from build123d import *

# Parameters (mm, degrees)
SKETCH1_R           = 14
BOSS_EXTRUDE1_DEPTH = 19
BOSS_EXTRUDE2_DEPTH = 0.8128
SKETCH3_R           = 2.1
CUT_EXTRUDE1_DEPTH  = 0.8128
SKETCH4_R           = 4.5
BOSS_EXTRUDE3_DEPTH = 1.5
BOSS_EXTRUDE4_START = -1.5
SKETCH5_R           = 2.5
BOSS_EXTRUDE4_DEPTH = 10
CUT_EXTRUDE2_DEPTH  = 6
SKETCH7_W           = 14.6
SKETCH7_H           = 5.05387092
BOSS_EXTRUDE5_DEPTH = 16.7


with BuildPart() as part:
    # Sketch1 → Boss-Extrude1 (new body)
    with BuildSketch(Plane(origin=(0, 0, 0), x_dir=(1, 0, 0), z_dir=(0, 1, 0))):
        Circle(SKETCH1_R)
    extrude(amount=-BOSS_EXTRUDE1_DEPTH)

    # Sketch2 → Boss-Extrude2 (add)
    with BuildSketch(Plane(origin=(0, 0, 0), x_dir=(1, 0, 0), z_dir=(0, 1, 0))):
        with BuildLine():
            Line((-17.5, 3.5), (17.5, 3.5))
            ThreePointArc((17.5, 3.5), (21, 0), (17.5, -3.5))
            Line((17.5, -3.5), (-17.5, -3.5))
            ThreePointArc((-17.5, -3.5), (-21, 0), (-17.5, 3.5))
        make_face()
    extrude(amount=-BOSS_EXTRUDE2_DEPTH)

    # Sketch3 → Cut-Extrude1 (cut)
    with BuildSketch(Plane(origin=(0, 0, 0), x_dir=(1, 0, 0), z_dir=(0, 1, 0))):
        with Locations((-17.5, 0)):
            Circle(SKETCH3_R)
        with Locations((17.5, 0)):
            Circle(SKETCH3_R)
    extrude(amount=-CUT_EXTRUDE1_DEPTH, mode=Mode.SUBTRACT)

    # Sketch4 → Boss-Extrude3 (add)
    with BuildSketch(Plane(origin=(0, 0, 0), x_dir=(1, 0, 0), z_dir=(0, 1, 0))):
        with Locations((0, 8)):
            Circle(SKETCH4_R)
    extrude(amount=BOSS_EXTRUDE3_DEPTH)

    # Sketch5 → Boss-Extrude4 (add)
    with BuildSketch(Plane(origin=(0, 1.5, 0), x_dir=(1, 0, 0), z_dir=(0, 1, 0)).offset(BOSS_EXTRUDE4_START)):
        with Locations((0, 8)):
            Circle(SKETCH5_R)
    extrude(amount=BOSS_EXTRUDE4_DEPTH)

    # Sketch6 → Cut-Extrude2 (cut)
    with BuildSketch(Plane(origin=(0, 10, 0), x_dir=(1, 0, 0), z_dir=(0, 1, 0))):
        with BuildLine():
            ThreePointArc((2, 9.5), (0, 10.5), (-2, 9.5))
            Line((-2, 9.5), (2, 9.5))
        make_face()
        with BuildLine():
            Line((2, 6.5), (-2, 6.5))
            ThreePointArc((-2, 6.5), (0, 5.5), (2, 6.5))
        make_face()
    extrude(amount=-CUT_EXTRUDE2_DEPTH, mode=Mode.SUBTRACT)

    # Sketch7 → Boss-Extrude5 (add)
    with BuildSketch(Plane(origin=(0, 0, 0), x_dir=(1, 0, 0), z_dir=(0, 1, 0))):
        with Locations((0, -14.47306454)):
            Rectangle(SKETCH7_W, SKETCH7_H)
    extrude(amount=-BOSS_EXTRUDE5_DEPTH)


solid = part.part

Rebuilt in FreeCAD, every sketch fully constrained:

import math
import FreeCAD as App
import Part
import Sketcher

doc = App.newDocument("Part")
body = doc.addObject("PartDesign::Body", "Body")

# Sketch on XZ plane
sketch1 = body.newObject("Sketcher::SketchObject", "Sketch")
sketch1.AttachmentSupport = (doc.getObject("XZ_Plane"), [""])
sketch1.MapMode = "FlatFace"
sketch1.addGeometry(Part.Circle(App.Vector(0, 0, 0), App.Vector(0, 0, 1), 14), False)
sketch1.addConstraint(Sketcher.Constraint("Coincident", 0, 3, -1, 1))
sketch1.addConstraint(Sketcher.Constraint("Diameter", 0, 28.0))
pad1 = body.newObject("PartDesign::Pad", "Pad")
pad1.Profile = sketch1
pad1.Length = 19

# Sketch on XZ plane
sketch2 = body.newObject("Sketcher::SketchObject", "Sketch001")
sketch2.AttachmentSupport = (doc.getObject("XZ_Plane"), [""])
sketch2.MapMode = "FlatFace"
sketch2.addGeometry(Part.LineSegment(App.Vector(17.5, -3.5, 0), App.Vector(-17.5, -3.5, 0)), False)
sketch2.addGeometry(Part.ArcOfCircle(Part.Circle(App.Vector(-17.5, 0, 0), App.Vector(0, 0, 1), 3.5), math.radians(90), math.radians(270)), False)
sketch2.addGeometry(Part.LineSegment(App.Vector(-17.5, 3.5, 0), App.Vector(17.5, 3.5, 0)), False)
sketch2.addGeometry(Part.ArcOfCircle(Part.Circle(App.Vector(17.5, 0, 0), App.Vector(0, 0, 1), 3.5), math.radians(-90), math.radians(90)), False)
sketch2.addConstraint(Sketcher.Constraint("Tangent", 0, 2, 1, 2))
sketch2.addConstraint(Sketcher.Constraint("Tangent", 1, 1, 2, 1))
sketch2.addConstraint(Sketcher.Constraint("Tangent", 2, 2, 3, 2))
sketch2.addConstraint(Sketcher.Constraint("Tangent", 3, 1, 0, 1))
sketch2.addConstraint(Sketcher.Constraint("Horizontal", 0))
sketch2.addConstraint(Sketcher.Constraint("Horizontal", 2))
sketch2.addConstraint(Sketcher.Constraint("Symmetric", 1, 3, 3, 3, -1, 1))
sketch2.addConstraint(Sketcher.Constraint("Radius", 1, 3.5))
sketch2.addConstraint(Sketcher.Constraint("DistanceX", 0, 2, 0, 1, 35.0))
pad2 = body.newObject("PartDesign::Pad", "Pad001")
pad2.Profile = sketch2
pad2.Length = 0.8128

# Sketch on XZ plane
sketch3 = body.newObject("Sketcher::SketchObject", "Sketch002")
sketch3.AttachmentSupport = (doc.getObject("XZ_Plane"), [""])
sketch3.MapMode = "FlatFace"
sketch3.addGeometry(Part.Circle(App.Vector(-17.5, 0, 0), App.Vector(0, 0, 1), 2.1), False)
sketch3.addGeometry(Part.Circle(App.Vector(17.5, 0, 0), App.Vector(0, 0, 1), 2.1), False)
sketch3.addConstraint(Sketcher.Constraint("Equal", 0, 1))
sketch3.addConstraint(Sketcher.Constraint("Symmetric", 0, 3, 1, 3, -1, 1))
sketch3.addConstraint(Sketcher.Constraint("PointOnObject", 0, 3, -1))
sketch3.addConstraint(Sketcher.Constraint("Diameter", 0, 4.2))
sketch3.addConstraint(Sketcher.Constraint("DistanceX", 0, 3, 1, 3, 35.0))
pocket1 = body.newObject("PartDesign::Pocket", "Pocket")
pocket1.Profile = sketch3
pocket1.Length = 0.8128
pocket1.Reversed = True

# Sketch on XZ plane
sketch4 = body.newObject("Sketcher::SketchObject", "Sketch003")
sketch4.AttachmentSupport = (doc.getObject("XZ_Plane"), [""])
sketch4.MapMode = "FlatFace"
sketch4.addGeometry(Part.Circle(App.Vector(0, -8, 0), App.Vector(0, 0, 1), 4.5), False)
sketch4.addConstraint(Sketcher.Constraint("PointOnObject", 0, 3, -2))
sketch4.addConstraint(Sketcher.Constraint("Diameter", 0, 9.0))
sketch4.addConstraint(Sketcher.Constraint("DistanceY", 0, 3, -1, 1, 8.0))
pad3 = body.newObject("PartDesign::Pad", "Pad002")
pad3.Profile = sketch4
pad3.Length = 1.5
pad3.Reversed = True

# Sketch on XZ plane
sketch5 = body.newObject("Sketcher::SketchObject", "Sketch004")
sketch5.AttachmentSupport = (doc.getObject("XZ_Plane"), [""])
sketch5.MapMode = "FlatFace"
sketch5.addGeometry(Part.Circle(App.Vector(0, -8, 0), App.Vector(0, 0, 1), 2.5), False)
sketch5.addConstraint(Sketcher.Constraint("PointOnObject", 0, 3, -2))
sketch5.addConstraint(Sketcher.Constraint("Diameter", 0, 5.0))
sketch5.addConstraint(Sketcher.Constraint("DistanceY", 0, 3, -1, 1, 8.0))
pad4 = body.newObject("PartDesign::Pad", "Pad003")
pad4.Profile = sketch5
pad4.Length = 10
pad4.Reversed = True

# Sketch on XZ plane
sketch6 = body.newObject("Sketcher::SketchObject", "Sketch005")
sketch6.AttachmentSupport = (doc.getObject("XZ_Plane"), [""])
sketch6.MapMode = "FlatFace"
sketch6.AttachmentOffset = App.Placement(App.Vector(0, 0, -10), App.Rotation())
sketch6.addGeometry(Part.ArcOfCircle(Part.Circle(App.Vector(0, -8, 0), App.Vector(0, 0, 1), 2.5), math.radians(-143), math.radians(-37)), False)
sketch6.addGeometry(Part.LineSegment(App.Vector(-2, -9.5, 0), App.Vector(2, -9.5, 0)), False)
sketch6.addGeometry(Part.LineSegment(App.Vector(2, -6.5, 0), App.Vector(-2, -6.5, 0)), False)
sketch6.addGeometry(Part.ArcOfCircle(Part.Circle(App.Vector(0, -8, 0), App.Vector(0, 0, 1), 2.5), math.radians(37), math.radians(143)), False)
sketch6.addConstraint(Sketcher.Constraint("Coincident", 0, 1, 1, 1))
sketch6.addConstraint(Sketcher.Constraint("Coincident", 1, 2, 0, 2))
sketch6.addConstraint(Sketcher.Constraint("Coincident", 2, 1, 3, 1))
sketch6.addConstraint(Sketcher.Constraint("Coincident", 3, 2, 2, 2))
sketch6.addConstraint(Sketcher.Constraint("Horizontal", 1))
sketch6.addConstraint(Sketcher.Constraint("Horizontal", 2))
sketch6.addConstraint(Sketcher.Constraint("Coincident", 3, 3, 0, 3))
sketch6.addConstraint(Sketcher.Constraint("Equal", 0, 3))
sketch6.addConstraint(Sketcher.Constraint("PointOnObject", 0, 3, -2))
sketch6.addConstraint(Sketcher.Constraint("Vertical", 1, 2, 2, 1))
sketch6.addConstraint(Sketcher.Constraint("Radius", 0, 2.5))
sketch6.addConstraint(Sketcher.Constraint("DistanceX", 1, 1, 1, 2, 4.0))
sketch6.addConstraint(Sketcher.Constraint("DistanceY", 0, 3, -1, 1, 8.0))
pocket2 = body.newObject("PartDesign::Pocket", "Pocket001")
pocket2.Profile = sketch6
pocket2.Length = 6
pocket2.Reversed = True

# Sketch on XZ plane
sketch7 = body.newObject("Sketcher::SketchObject", "Sketch006")
sketch7.AttachmentSupport = (doc.getObject("XZ_Plane"), [""])
sketch7.MapMode = "FlatFace"
sketch7.addGeometry(Part.LineSegment(App.Vector(-7, 12, 0), App.Vector(-7, 17, 0)), False)
sketch7.addGeometry(Part.LineSegment(App.Vector(-7, 17, 0), App.Vector(7, 17, 0)), False)
sketch7.addGeometry(Part.LineSegment(App.Vector(7, 17, 0), App.Vector(7, 12, 0)), False)
sketch7.addGeometry(Part.LineSegment(App.Vector(7, 12, 0), App.Vector(-7, 12, 0)), False)
sketch7.addConstraint(Sketcher.Constraint("Coincident", 0, 2, 1, 1))
sketch7.addConstraint(Sketcher.Constraint("Coincident", 1, 2, 2, 1))
sketch7.addConstraint(Sketcher.Constraint("Coincident", 2, 2, 3, 1))
sketch7.addConstraint(Sketcher.Constraint("Coincident", 3, 2, 0, 1))
sketch7.addConstraint(Sketcher.Constraint("Vertical", 0))
sketch7.addConstraint(Sketcher.Constraint("Horizontal", 1))
sketch7.addConstraint(Sketcher.Constraint("Vertical", 2))
sketch7.addConstraint(Sketcher.Constraint("Horizontal", 3))
sketch7.addConstraint(Sketcher.Constraint("DistanceX", 1, 1, 1, 2, 14.6))
sketch7.addConstraint(Sketcher.Constraint("DistanceY", -1, 1, 0, 2, 17.0))
sketch7.addConstraint(Sketcher.Constraint("DistanceX", 0, 2, -1, 1, 7.3))
sketch7.addConstraint(Sketcher.Constraint("DistanceY", 0, 1, 0, 2, 5.053871))
pad5 = body.newObject("PartDesign::Pad", "Pad004")
pad5.Profile = sketch7
pad5.Length = 16.7

doc.recompute()
